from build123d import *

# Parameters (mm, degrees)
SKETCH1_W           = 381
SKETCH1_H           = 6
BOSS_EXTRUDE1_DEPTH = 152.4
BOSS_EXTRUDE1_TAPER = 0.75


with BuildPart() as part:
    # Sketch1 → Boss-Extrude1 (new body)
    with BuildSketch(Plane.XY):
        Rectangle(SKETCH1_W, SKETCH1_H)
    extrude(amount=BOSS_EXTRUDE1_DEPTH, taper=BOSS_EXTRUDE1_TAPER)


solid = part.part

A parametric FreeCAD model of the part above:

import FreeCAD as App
import Part
import Sketcher
Q = App.Units.Quantity


def add_polygon(sketch, points):
    """Adds a closed chain of lines whose ends are joined by coincident constraints."""
    first, n = sketch.GeometryCount, len(points)
    for a, b in zip(points, points[1:] + points[:1]):
        sketch.addGeometry(Part.LineSegment(App.Vector(*a, 0), App.Vector(*b, 0)), False)
    for i in range(n):
        sketch.addConstraint(Sketcher.Constraint("Coincident", first + i, 2, first + (i + 1) % n, 1))

doc = App.newDocument("Part")
body = doc.addObject("PartDesign::Body", "Body")

# Sketch on XY plane
sketch1 = body.newObject("Sketcher::SketchObject", "Sketch")
sketch1.AttachmentSupport = (doc.getObject("XY_Plane"), [""])
sketch1.MapMode = "FlatFace"
add_polygon(sketch1, [(-190, 3), (-190, -3), (190, -3), (190, 3)])  # lines 0-3
sketch1.addConstraint([
    Sketcher.Constraint("Vertical", 0),
    Sketcher.Constraint("Horizontal", 1),
    Sketcher.Constraint("Vertical", 2),
    Sketcher.Constraint("Horizontal", 3),
    Sketcher.Constraint("Symmetric", 0, 2, 2, 2, -1, 1),
    Sketcher.Constraint("DistanceX", 1, 1, 1, 2, Q("15 in")),
    Sketcher.Constraint("DistanceY", 0, 2, 0, 1, 6.0),
])
pad1 = body.newObject("PartDesign::Pad", "Pad")
pad1.Profile = sketch1
pad1.Length = Q("6 in")
pad1.TaperAngle = -0.75

doc.recompute()
